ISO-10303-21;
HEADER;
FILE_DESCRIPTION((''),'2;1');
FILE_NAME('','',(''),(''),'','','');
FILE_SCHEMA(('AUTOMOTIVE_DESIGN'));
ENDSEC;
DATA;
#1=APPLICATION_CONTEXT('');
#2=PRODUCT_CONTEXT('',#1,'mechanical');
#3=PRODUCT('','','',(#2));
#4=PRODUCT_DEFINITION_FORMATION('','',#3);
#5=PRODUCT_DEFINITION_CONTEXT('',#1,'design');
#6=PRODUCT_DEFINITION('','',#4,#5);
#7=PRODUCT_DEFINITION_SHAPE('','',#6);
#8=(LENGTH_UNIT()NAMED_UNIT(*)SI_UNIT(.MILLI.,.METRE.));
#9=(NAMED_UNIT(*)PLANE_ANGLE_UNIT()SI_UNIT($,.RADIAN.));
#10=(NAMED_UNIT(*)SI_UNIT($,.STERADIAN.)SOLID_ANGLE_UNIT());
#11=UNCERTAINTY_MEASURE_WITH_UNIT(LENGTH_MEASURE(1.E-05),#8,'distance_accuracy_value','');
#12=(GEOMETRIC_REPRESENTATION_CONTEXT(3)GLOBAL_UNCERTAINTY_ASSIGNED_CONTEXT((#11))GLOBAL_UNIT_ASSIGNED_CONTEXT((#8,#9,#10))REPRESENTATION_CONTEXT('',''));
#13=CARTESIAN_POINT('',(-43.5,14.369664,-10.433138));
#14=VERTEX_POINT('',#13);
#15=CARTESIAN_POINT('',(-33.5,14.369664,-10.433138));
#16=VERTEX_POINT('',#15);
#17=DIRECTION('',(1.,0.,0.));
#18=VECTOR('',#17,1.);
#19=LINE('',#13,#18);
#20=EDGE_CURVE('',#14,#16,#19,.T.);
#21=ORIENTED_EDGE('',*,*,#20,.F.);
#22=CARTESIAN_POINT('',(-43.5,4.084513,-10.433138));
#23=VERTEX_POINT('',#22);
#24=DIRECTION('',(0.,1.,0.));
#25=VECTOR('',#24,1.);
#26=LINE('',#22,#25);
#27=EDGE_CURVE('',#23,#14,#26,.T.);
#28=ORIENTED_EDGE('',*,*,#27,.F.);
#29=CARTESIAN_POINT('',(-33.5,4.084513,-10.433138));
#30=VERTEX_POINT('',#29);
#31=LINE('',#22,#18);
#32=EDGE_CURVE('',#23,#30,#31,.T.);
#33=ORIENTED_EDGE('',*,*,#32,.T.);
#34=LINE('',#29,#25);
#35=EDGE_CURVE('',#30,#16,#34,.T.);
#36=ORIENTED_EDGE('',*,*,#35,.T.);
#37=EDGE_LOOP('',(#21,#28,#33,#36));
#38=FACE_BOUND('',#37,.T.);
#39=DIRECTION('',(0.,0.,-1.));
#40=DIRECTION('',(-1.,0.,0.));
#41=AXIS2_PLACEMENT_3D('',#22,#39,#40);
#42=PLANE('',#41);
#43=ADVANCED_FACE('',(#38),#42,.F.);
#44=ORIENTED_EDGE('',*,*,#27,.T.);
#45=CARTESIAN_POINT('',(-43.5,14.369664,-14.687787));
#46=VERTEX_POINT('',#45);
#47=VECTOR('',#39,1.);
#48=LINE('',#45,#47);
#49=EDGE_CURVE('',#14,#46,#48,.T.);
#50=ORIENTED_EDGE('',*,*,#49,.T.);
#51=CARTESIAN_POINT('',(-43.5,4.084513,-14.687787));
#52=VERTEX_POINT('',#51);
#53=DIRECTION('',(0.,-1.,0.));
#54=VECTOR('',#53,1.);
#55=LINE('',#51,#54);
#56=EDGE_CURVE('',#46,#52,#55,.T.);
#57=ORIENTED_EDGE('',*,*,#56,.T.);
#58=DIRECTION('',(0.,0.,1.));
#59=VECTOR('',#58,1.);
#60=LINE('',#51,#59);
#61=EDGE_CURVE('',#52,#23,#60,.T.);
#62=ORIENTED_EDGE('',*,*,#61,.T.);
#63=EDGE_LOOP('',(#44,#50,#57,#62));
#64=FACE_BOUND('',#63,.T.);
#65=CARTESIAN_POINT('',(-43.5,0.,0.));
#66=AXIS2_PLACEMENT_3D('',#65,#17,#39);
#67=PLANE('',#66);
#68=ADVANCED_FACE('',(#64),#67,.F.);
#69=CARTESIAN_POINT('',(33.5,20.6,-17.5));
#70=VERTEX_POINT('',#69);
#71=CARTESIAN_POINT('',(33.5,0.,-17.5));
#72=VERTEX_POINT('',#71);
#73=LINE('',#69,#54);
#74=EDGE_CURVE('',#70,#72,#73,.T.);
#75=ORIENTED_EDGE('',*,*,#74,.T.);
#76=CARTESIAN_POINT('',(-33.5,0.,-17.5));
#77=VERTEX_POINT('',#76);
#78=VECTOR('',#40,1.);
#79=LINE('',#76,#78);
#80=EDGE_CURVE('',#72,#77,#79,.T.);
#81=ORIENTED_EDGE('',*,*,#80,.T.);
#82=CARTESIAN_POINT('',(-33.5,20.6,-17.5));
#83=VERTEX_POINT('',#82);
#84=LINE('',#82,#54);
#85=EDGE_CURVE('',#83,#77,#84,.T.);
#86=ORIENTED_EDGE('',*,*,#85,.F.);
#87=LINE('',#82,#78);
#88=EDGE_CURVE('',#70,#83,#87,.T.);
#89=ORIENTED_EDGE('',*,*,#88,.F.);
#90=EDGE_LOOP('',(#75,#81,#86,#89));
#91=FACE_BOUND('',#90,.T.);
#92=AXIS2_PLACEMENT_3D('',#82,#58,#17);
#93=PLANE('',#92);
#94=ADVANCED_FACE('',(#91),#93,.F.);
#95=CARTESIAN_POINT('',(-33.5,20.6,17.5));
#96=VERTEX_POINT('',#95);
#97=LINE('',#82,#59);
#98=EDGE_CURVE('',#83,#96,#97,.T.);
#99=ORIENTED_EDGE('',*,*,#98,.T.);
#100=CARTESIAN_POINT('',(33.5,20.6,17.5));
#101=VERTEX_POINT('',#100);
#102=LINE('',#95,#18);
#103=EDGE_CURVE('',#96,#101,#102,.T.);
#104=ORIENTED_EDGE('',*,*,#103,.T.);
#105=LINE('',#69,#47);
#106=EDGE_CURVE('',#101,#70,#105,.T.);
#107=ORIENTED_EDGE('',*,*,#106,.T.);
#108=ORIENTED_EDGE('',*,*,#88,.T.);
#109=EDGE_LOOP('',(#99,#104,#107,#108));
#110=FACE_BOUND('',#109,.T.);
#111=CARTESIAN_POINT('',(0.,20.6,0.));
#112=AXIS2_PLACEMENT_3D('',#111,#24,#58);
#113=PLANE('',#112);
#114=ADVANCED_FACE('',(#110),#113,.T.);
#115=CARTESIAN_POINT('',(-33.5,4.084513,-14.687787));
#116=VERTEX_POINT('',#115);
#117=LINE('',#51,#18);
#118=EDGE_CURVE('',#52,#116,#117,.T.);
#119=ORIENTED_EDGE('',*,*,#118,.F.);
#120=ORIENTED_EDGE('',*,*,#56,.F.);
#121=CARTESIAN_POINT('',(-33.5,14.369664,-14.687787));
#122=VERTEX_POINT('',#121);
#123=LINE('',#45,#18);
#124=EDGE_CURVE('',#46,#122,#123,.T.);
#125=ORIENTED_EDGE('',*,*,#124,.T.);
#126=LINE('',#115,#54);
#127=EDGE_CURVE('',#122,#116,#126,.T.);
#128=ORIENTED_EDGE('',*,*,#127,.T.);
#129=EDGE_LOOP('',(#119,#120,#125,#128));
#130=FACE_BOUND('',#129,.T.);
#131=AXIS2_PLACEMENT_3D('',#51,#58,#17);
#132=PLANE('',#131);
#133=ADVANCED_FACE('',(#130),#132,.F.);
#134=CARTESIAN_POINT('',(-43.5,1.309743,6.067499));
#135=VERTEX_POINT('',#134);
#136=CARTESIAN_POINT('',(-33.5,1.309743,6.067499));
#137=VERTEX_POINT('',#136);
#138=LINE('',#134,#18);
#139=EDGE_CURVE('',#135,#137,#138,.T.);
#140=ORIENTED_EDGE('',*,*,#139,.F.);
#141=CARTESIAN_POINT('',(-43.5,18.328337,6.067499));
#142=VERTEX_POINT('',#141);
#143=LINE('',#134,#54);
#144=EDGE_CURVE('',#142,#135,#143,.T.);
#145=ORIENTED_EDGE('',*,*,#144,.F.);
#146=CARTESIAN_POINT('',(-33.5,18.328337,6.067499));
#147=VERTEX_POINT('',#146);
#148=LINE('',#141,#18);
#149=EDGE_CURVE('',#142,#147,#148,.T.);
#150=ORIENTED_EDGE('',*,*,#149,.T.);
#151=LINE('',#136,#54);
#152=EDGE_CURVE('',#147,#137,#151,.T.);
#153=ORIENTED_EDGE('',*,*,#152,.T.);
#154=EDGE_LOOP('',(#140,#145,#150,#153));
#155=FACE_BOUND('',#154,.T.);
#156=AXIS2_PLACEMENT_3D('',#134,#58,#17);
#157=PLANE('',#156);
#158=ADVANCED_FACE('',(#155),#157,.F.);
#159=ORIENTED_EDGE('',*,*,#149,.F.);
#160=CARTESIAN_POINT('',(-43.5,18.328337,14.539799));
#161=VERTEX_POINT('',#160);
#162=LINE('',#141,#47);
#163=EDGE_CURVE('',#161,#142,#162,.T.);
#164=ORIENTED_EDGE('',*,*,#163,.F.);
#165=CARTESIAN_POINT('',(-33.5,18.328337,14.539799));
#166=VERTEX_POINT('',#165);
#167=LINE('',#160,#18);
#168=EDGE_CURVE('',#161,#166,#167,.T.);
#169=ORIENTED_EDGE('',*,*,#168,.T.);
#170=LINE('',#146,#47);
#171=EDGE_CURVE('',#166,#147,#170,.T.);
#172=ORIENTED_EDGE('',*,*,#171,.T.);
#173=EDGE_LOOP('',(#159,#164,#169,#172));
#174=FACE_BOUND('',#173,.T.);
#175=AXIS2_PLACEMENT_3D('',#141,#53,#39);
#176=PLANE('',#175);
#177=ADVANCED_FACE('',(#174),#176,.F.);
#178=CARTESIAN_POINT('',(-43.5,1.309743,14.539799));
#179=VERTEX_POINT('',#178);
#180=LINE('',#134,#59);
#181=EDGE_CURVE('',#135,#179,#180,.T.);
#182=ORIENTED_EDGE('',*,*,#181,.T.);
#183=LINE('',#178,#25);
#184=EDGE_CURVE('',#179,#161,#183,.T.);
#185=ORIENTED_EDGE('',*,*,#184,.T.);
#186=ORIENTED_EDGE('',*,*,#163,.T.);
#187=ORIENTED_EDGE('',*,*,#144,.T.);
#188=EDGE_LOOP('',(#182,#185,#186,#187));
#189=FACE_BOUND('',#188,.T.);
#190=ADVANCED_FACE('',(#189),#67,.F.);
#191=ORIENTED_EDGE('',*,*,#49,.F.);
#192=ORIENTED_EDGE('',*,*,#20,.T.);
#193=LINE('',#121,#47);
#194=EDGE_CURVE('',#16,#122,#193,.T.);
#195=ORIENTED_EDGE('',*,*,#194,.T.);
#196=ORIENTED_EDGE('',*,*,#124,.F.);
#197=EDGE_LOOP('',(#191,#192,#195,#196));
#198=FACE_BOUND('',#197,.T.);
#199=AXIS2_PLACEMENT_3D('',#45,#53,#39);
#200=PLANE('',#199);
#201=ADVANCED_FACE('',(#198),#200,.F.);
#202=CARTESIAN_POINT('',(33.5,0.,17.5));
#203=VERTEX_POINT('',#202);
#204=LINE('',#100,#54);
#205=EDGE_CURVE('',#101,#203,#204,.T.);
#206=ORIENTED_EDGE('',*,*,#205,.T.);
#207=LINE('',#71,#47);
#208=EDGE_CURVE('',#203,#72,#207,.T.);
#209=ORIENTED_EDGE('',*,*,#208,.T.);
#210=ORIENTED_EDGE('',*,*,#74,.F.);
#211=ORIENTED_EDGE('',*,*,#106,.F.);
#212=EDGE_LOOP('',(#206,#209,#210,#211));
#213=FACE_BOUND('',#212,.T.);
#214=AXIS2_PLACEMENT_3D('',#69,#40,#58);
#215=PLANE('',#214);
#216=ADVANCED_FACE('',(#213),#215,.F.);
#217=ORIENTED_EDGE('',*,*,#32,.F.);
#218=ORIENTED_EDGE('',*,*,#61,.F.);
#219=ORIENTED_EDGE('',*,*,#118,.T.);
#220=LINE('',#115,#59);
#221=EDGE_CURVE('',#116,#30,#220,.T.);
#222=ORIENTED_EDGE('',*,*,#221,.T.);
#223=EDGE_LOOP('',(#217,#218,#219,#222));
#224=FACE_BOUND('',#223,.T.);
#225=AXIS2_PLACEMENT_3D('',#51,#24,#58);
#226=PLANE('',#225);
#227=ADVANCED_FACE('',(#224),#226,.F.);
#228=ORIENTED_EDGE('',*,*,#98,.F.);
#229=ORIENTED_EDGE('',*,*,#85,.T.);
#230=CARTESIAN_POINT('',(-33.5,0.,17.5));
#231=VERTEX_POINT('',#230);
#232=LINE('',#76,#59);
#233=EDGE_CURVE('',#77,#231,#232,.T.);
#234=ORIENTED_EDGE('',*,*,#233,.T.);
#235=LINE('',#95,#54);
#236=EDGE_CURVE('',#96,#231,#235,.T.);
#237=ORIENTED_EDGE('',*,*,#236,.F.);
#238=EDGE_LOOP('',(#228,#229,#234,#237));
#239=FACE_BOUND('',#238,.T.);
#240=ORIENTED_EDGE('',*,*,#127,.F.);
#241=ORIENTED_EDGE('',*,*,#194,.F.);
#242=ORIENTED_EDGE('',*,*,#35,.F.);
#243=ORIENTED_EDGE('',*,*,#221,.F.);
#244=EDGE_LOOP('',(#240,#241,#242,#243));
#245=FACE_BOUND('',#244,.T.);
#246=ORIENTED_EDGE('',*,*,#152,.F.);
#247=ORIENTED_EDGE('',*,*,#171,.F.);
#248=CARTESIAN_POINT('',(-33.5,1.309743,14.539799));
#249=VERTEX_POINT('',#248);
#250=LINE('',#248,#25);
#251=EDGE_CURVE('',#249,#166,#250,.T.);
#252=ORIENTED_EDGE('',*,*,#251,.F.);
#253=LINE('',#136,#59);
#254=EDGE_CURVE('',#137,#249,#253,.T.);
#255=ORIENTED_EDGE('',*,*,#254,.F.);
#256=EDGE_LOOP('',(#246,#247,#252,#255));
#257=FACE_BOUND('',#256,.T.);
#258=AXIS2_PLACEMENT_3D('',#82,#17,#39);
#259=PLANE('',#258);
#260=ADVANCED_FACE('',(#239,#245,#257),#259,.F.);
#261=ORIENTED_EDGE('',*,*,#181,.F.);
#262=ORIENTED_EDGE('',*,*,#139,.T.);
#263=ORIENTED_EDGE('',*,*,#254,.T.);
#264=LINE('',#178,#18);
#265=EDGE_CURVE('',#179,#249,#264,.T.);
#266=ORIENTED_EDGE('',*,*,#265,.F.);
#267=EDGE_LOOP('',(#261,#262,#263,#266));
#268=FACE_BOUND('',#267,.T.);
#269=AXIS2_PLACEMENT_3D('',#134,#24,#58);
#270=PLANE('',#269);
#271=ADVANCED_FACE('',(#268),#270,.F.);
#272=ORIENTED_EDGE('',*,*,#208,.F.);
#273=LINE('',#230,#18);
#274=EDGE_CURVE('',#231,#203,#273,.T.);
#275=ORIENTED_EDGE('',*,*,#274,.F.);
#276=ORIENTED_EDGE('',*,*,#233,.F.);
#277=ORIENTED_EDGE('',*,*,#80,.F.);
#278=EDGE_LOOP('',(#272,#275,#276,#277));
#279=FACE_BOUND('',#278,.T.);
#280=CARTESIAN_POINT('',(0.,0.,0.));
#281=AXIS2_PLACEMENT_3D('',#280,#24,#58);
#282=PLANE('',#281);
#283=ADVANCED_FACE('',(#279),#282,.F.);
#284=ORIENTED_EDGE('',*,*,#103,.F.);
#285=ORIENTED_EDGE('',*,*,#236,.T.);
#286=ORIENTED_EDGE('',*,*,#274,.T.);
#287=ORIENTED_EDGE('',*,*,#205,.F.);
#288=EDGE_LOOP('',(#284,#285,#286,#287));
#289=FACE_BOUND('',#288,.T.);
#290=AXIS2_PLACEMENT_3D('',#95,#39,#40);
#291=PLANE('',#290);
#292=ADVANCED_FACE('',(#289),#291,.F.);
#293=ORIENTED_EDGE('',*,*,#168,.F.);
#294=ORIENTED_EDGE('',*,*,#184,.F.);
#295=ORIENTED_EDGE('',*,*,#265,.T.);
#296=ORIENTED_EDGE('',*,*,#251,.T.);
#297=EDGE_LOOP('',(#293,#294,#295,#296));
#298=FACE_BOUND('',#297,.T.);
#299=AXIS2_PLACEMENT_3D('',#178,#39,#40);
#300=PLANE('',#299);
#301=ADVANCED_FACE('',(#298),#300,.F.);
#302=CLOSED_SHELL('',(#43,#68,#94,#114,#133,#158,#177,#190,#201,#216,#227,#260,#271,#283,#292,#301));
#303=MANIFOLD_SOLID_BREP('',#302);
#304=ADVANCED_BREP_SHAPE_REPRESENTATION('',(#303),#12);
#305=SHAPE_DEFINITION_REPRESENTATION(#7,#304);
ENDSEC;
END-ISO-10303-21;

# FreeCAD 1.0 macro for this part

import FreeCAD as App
import Part
import Sketcher

V = App.Vector
Q = App.Units.Quantity


def add_polygon(sketch, points):
    """Adds a closed chain of lines whose ends are joined by coincident constraints."""
    first, n = sketch.GeometryCount, len(points)
    for a, b in zip(points, points[1:] + points[:1]):
        sketch.addGeometry(Part.LineSegment(App.Vector(*a, 0), App.Vector(*b, 0)), False)
    for i in range(n):
        sketch.addConstraint(Sketcher.Constraint("Coincident", first + i, 2, first + (i + 1) % n, 1))

doc = App.newDocument("Part")
params = doc.addObject("Spreadsheet::Sheet", "Params")
for row, (alias, value) in enumerate([
    ("sketch1_width", "67 mm"),
    ("sketch1_height", "35 mm"),
    ("pad1_length", "20.6 mm"),
    ("pad2_length", "10 mm"),
], start=1):
    params.set(f"A{row}", alias)
    params.set(f"B{row}", "=" + value)
    params.setAlias(f"B{row}", alias)

body = doc.addObject("PartDesign::Body", "Body")

sketch1 = body.newObject("Sketcher::SketchObject", "Sketch")
sketch1.AttachmentSupport = (doc.getObject("XZ_Plane"), [""])
sketch1.MapMode = "FlatFace"
add_polygon(sketch1, [(-33.5, -17.5), (-33.5, 17.5), (33.5, 17.5), (33.5, -17.5)])
sketch1.addConstraint(Sketcher.Constraint("Vertical", 0))
sketch1.addConstraint(Sketcher.Constraint("Horizontal", 1))
sketch1.addConstraint(Sketcher.Constraint("Vertical", 2))
sketch1.addConstraint(Sketcher.Constraint("Horizontal", 3))
sketch1.addConstraint(Sketcher.Constraint("Symmetric", 0, 2, 2, 2, -1, 1))
sketch1.addConstraint(Sketcher.Constraint("DistanceX", 1, 1, 1, 2, Q("67 mm")))
sketch1.addConstraint(Sketcher.Constraint("DistanceY", 0, 1, 0, 2, Q("35 mm")))
sketch1.setExpression("Constraints[9]", "Params.sketch1_width")
sketch1.setExpression("Constraints[10]", "Params.sketch1_height")
pad1 = body.newObject("PartDesign::Pad", "Pad")
pad1.Profile = sketch1
pad1.setExpression("Length", "Params.pad1_length")
pad1.Reversed = True

sketch2 = body.newObject("Sketcher::SketchObject", "Sketch001")
sketch2.AttachmentSupport = (doc.getObject("YZ_Plane"), [""])
sketch2.MapMode = "FlatFace"
sketch2.AttachmentOffset = App.Placement(V(0, 0, -33.5), App.Rotation())
add_polygon(sketch2, [(14.369664, -14.687787), (4.084513, -14.687787), (4.084513, -10.433138), (14.369664, -10.433138)])
add_polygon(sketch2, [(18.328337, 6.067499), (1.309743, 6.067499), (1.309743, 14.539799), (18.328337, 14.539799)])
sketch2.addConstraint(Sketcher.Constraint("Horizontal", 0))
sketch2.addConstraint(Sketcher.Constraint("Vertical", 1))
sketch2.addConstraint(Sketcher.Constraint("Horizontal", 2))
sketch2.addConstraint(Sketcher.Constraint("Vertical", 3))
sketch2.addConstraint(Sketcher.Constraint("Horizontal", 4))
sketch2.addConstraint(Sketcher.Constraint("Vertical", 5))
sketch2.addConstraint(Sketcher.Constraint("Horizontal", 6))
sketch2.addConstraint(Sketcher.Constraint("Vertical", 7))
sketch2.addConstraint(Sketcher.Constraint("DistanceY", 5, 1, 5, 2, Q("8.4723 mm")))
sketch2.addConstraint(Sketcher.Constraint("DistanceX", 0, 2, 0, 1, Q("10.28515 mm")))
sketch2.addConstraint(Sketcher.Constraint("DistanceY", 1, 1, 1, 2, Q("4.254649 mm")))
sketch2.addConstraint(Sketcher.Constraint("DistanceY", -1, 1, 4, 2, Q("6.067499 mm")))
sketch2.addConstraint(Sketcher.Constraint("DistanceX", 4, 2, 4, 1, Q("17.018594 mm")))
sketch2.addConstraint(Sketcher.Constraint("DistanceY", 1, 2, -1, 1, Q("10.433138 mm")))
sketch2.addConstraint(Sketcher.Constraint("DistanceX", 4, 2, 1, 2, Q("2.774771 mm")))
sketch2.addConstraint(Sketcher.Constraint("DistanceX", -1, 1, 0, 2, Q("4.084513 mm")))
pad2 = body.newObject("PartDesign::Pad", "Pad001")
pad2.Profile = sketch2
pad2.setExpression("Length", "Params.pad2_length")
pad2.Reversed = True

doc.recompute()
